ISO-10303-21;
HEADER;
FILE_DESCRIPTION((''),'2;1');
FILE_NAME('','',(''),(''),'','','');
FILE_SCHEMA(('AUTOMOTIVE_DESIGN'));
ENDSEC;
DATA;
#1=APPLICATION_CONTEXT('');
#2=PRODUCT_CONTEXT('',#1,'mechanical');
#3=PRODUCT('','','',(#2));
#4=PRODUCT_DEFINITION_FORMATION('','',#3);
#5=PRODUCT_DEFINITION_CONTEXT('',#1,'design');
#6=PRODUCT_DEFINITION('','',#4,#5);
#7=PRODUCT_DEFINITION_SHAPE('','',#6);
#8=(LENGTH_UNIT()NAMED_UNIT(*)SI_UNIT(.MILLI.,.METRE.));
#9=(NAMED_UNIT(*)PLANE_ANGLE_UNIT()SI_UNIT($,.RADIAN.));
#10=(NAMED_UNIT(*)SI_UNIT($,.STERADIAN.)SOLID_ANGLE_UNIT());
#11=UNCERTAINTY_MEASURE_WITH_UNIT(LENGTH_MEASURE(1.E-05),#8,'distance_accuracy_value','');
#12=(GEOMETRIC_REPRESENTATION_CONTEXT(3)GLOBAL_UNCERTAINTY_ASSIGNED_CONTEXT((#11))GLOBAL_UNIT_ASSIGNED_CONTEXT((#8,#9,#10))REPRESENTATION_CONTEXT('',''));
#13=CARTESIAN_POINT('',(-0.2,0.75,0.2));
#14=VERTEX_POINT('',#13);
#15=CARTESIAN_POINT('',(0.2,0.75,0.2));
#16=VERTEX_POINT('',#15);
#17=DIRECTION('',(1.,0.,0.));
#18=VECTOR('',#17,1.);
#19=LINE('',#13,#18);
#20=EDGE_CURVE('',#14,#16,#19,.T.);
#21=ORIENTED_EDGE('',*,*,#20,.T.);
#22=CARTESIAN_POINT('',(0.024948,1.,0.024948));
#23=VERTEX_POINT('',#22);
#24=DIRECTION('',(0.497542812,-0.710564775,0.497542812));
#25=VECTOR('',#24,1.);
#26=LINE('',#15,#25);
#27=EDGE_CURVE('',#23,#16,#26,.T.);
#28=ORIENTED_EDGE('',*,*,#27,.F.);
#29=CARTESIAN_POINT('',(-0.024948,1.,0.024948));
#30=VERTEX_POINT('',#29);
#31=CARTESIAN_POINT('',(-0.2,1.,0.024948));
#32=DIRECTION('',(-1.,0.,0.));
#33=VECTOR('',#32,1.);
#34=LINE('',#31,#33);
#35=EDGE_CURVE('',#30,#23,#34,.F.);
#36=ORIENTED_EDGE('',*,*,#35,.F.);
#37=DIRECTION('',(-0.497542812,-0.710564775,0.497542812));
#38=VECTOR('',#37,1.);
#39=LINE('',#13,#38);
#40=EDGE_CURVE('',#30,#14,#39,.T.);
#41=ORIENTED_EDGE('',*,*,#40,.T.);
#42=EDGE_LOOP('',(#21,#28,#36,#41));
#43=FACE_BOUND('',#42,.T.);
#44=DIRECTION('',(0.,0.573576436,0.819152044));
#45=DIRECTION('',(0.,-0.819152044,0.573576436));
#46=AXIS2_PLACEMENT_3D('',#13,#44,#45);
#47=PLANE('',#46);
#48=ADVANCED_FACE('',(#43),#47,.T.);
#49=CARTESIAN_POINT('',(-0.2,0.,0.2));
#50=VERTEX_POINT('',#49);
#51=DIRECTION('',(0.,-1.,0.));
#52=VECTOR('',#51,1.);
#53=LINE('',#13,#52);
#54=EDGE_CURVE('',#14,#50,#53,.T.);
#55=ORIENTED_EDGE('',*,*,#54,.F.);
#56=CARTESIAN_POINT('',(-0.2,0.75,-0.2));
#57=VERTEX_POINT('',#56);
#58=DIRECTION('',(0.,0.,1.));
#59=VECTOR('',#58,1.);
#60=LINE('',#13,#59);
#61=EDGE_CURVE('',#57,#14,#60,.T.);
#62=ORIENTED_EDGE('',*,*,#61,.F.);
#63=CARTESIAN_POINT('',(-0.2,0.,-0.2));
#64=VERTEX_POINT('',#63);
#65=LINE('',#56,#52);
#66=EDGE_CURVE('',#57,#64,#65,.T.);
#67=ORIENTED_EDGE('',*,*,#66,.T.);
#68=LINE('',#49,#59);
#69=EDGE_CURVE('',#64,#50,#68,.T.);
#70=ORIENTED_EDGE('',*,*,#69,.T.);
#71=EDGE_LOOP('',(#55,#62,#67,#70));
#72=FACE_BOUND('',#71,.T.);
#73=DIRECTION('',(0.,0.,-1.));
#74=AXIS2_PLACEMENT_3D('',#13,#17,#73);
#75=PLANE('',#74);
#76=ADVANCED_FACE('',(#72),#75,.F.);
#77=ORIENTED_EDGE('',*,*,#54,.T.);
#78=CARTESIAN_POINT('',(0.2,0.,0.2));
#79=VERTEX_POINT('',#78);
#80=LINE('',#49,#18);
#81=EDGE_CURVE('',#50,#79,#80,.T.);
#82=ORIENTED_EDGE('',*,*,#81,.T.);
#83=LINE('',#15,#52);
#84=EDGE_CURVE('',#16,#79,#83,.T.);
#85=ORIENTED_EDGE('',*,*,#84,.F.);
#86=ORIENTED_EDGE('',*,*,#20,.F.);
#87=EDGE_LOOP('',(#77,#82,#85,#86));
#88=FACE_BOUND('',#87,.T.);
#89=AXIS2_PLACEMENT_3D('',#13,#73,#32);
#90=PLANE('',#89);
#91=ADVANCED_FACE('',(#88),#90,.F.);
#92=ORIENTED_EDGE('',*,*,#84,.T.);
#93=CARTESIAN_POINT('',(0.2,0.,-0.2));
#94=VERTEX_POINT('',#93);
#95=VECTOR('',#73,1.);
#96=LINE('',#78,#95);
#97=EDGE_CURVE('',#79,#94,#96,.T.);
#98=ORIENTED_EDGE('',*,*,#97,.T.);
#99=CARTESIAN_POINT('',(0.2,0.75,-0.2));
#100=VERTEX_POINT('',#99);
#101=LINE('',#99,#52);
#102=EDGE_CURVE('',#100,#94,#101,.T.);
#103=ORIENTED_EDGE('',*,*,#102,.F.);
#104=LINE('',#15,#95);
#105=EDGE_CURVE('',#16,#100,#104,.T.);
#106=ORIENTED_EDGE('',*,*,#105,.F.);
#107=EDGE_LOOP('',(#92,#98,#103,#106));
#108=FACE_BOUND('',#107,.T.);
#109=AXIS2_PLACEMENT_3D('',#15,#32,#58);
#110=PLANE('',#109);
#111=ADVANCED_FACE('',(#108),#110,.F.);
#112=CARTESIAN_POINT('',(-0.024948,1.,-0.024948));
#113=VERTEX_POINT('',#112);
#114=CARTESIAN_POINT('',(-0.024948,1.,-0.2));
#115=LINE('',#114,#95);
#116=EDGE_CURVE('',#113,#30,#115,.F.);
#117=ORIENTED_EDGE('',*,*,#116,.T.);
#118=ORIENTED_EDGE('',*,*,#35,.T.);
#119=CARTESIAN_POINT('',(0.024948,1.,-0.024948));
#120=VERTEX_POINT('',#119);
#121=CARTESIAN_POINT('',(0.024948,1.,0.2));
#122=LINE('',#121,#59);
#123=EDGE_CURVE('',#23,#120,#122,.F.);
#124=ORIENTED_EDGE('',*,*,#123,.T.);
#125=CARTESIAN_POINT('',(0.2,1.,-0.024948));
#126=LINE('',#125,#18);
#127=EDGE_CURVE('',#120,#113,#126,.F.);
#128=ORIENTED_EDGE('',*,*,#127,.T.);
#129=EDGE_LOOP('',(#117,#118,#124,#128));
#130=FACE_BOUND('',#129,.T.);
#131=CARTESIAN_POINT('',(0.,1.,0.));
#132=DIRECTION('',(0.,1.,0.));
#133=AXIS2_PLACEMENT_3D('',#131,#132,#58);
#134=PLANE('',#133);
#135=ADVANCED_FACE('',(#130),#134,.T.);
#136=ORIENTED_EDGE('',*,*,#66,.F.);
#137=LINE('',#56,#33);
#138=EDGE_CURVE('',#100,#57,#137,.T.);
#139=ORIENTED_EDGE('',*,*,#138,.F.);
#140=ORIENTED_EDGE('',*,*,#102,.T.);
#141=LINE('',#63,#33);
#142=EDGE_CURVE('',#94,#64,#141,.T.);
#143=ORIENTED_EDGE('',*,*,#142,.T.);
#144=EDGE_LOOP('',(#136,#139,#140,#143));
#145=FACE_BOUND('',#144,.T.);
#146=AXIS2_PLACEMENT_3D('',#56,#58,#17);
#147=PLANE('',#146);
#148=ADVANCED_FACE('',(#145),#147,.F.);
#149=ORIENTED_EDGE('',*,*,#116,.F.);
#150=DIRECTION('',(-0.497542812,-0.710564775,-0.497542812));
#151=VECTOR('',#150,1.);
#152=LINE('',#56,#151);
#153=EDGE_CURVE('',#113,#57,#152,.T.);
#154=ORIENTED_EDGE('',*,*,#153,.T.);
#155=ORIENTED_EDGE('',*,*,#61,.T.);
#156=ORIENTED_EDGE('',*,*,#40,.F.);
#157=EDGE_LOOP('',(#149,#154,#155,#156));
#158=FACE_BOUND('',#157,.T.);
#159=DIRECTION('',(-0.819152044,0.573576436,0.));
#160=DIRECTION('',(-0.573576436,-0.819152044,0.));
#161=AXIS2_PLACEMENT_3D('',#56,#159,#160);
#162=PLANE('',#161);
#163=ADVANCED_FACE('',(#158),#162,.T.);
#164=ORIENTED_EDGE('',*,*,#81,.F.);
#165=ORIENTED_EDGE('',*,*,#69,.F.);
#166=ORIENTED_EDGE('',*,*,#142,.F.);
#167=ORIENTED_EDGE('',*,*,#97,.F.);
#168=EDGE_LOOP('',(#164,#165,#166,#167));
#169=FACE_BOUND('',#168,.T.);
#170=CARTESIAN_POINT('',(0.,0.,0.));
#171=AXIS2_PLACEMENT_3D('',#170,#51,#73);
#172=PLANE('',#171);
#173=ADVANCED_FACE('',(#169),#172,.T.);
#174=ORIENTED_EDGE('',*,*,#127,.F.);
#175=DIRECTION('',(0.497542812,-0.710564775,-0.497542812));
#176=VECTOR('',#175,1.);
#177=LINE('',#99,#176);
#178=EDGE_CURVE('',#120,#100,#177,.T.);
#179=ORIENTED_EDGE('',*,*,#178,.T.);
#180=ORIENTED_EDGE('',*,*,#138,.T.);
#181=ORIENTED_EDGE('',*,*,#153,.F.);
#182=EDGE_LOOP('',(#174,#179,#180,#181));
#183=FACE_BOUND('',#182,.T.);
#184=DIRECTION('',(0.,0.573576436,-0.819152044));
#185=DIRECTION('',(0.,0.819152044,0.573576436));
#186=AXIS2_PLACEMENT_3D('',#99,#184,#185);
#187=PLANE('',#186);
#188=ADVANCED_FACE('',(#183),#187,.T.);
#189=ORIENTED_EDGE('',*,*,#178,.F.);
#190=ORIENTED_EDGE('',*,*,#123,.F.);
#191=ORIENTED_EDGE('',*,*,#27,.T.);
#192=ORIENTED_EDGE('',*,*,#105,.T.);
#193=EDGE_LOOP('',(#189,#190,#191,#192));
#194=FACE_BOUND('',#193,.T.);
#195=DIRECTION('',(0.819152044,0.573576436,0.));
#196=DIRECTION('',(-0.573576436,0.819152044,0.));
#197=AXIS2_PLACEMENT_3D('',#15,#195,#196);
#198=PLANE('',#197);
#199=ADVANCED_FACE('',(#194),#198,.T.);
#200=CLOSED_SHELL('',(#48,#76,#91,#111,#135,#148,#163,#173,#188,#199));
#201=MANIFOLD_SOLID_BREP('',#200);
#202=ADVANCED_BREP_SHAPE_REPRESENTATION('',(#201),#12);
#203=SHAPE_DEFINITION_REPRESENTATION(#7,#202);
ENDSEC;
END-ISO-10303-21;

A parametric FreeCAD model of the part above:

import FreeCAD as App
import Part
import Sketcher
from FreeCAD import Vector


def add_polygon(sketch, points):
    """Adds a closed chain of lines whose ends are joined by coincident constraints."""
    first, n = sketch.GeometryCount, len(points)
    for a, b in zip(points, points[1:] + points[:1]):
        sketch.addGeometry(Part.LineSegment(App.Vector(*a, 0), App.Vector(*b, 0)), False)
    for i in range(n):
        sketch.addConstraint(Sketcher.Constraint("Coincident", first + i, 2, first + (i + 1) % n, 1))

doc = App.newDocument("Part")
body = doc.addObject("PartDesign::Body", "Body")

sketch1 = body.newObject("Sketcher::SketchObject", "Sketch")
sketch1.AttachmentSupport = (doc.getObject("XZ_Plane"), [""])
sketch1.MapMode = "FlatFace"
add_polygon(sketch1, [(-0.2, -0.2), (-0.2, 0.2), (0.2, 0.2), (0.2, -0.2)])
sketch1.addConstraint([
    Sketcher.Constraint("Vertical", 0),
    Sketcher.Constraint("Horizontal", 1),
    Sketcher.Constraint("Vertical", 2),
    Sketcher.Constraint("Horizontal", 3),
    Sketcher.Constraint("Symmetric", 0, 2, 2, 2, -1, 1),
    Sketcher.Constraint("Equal", 3, 0),
    Sketcher.Constraint("DistanceX", 1, 1, 1, 2, 0.4),
])
pad1 = body.newObject("PartDesign::Pad", "Pad")
pad1.Profile = sketch1
pad1.Length = 0.75
pad1.Reversed = True

sketch2 = body.newObject("Sketcher::SketchObject", "Sketch001")
sketch2.AttachmentSupport = (doc.getObject("XZ_Plane"), [""])
sketch2.MapMode = "FlatFace"
sketch2.AttachmentOffset = App.Placement(Vector(0, 0, -0.75), App.Rotation())
add_polygon(sketch2, [(-0.2, -0.2), (-0.2, 0.2), (0.2, 0.2), (0.2, -0.2)])
sketch2.addConstraint([
    Sketcher.Constraint("Vertical", 0),
    Sketcher.Constraint("Horizontal", 1),
    Sketcher.Constraint("Vertical", 2),
    Sketcher.Constraint("Horizontal", 3),
    Sketcher.Constraint("Symmetric", 0, 2, 2, 2, -1, 1),
    Sketcher.Constraint("Equal", 3, 0),
    Sketcher.Constraint("DistanceX", 1, 1, 1, 2, 0.4),
])
pad2 = body.newObject("PartDesign::Pad", "Pad001")
pad2.Profile = sketch2
pad2.Length = 0.25
pad2.Reversed = True
pad2.TaperAngle = -35

doc.recompute()
